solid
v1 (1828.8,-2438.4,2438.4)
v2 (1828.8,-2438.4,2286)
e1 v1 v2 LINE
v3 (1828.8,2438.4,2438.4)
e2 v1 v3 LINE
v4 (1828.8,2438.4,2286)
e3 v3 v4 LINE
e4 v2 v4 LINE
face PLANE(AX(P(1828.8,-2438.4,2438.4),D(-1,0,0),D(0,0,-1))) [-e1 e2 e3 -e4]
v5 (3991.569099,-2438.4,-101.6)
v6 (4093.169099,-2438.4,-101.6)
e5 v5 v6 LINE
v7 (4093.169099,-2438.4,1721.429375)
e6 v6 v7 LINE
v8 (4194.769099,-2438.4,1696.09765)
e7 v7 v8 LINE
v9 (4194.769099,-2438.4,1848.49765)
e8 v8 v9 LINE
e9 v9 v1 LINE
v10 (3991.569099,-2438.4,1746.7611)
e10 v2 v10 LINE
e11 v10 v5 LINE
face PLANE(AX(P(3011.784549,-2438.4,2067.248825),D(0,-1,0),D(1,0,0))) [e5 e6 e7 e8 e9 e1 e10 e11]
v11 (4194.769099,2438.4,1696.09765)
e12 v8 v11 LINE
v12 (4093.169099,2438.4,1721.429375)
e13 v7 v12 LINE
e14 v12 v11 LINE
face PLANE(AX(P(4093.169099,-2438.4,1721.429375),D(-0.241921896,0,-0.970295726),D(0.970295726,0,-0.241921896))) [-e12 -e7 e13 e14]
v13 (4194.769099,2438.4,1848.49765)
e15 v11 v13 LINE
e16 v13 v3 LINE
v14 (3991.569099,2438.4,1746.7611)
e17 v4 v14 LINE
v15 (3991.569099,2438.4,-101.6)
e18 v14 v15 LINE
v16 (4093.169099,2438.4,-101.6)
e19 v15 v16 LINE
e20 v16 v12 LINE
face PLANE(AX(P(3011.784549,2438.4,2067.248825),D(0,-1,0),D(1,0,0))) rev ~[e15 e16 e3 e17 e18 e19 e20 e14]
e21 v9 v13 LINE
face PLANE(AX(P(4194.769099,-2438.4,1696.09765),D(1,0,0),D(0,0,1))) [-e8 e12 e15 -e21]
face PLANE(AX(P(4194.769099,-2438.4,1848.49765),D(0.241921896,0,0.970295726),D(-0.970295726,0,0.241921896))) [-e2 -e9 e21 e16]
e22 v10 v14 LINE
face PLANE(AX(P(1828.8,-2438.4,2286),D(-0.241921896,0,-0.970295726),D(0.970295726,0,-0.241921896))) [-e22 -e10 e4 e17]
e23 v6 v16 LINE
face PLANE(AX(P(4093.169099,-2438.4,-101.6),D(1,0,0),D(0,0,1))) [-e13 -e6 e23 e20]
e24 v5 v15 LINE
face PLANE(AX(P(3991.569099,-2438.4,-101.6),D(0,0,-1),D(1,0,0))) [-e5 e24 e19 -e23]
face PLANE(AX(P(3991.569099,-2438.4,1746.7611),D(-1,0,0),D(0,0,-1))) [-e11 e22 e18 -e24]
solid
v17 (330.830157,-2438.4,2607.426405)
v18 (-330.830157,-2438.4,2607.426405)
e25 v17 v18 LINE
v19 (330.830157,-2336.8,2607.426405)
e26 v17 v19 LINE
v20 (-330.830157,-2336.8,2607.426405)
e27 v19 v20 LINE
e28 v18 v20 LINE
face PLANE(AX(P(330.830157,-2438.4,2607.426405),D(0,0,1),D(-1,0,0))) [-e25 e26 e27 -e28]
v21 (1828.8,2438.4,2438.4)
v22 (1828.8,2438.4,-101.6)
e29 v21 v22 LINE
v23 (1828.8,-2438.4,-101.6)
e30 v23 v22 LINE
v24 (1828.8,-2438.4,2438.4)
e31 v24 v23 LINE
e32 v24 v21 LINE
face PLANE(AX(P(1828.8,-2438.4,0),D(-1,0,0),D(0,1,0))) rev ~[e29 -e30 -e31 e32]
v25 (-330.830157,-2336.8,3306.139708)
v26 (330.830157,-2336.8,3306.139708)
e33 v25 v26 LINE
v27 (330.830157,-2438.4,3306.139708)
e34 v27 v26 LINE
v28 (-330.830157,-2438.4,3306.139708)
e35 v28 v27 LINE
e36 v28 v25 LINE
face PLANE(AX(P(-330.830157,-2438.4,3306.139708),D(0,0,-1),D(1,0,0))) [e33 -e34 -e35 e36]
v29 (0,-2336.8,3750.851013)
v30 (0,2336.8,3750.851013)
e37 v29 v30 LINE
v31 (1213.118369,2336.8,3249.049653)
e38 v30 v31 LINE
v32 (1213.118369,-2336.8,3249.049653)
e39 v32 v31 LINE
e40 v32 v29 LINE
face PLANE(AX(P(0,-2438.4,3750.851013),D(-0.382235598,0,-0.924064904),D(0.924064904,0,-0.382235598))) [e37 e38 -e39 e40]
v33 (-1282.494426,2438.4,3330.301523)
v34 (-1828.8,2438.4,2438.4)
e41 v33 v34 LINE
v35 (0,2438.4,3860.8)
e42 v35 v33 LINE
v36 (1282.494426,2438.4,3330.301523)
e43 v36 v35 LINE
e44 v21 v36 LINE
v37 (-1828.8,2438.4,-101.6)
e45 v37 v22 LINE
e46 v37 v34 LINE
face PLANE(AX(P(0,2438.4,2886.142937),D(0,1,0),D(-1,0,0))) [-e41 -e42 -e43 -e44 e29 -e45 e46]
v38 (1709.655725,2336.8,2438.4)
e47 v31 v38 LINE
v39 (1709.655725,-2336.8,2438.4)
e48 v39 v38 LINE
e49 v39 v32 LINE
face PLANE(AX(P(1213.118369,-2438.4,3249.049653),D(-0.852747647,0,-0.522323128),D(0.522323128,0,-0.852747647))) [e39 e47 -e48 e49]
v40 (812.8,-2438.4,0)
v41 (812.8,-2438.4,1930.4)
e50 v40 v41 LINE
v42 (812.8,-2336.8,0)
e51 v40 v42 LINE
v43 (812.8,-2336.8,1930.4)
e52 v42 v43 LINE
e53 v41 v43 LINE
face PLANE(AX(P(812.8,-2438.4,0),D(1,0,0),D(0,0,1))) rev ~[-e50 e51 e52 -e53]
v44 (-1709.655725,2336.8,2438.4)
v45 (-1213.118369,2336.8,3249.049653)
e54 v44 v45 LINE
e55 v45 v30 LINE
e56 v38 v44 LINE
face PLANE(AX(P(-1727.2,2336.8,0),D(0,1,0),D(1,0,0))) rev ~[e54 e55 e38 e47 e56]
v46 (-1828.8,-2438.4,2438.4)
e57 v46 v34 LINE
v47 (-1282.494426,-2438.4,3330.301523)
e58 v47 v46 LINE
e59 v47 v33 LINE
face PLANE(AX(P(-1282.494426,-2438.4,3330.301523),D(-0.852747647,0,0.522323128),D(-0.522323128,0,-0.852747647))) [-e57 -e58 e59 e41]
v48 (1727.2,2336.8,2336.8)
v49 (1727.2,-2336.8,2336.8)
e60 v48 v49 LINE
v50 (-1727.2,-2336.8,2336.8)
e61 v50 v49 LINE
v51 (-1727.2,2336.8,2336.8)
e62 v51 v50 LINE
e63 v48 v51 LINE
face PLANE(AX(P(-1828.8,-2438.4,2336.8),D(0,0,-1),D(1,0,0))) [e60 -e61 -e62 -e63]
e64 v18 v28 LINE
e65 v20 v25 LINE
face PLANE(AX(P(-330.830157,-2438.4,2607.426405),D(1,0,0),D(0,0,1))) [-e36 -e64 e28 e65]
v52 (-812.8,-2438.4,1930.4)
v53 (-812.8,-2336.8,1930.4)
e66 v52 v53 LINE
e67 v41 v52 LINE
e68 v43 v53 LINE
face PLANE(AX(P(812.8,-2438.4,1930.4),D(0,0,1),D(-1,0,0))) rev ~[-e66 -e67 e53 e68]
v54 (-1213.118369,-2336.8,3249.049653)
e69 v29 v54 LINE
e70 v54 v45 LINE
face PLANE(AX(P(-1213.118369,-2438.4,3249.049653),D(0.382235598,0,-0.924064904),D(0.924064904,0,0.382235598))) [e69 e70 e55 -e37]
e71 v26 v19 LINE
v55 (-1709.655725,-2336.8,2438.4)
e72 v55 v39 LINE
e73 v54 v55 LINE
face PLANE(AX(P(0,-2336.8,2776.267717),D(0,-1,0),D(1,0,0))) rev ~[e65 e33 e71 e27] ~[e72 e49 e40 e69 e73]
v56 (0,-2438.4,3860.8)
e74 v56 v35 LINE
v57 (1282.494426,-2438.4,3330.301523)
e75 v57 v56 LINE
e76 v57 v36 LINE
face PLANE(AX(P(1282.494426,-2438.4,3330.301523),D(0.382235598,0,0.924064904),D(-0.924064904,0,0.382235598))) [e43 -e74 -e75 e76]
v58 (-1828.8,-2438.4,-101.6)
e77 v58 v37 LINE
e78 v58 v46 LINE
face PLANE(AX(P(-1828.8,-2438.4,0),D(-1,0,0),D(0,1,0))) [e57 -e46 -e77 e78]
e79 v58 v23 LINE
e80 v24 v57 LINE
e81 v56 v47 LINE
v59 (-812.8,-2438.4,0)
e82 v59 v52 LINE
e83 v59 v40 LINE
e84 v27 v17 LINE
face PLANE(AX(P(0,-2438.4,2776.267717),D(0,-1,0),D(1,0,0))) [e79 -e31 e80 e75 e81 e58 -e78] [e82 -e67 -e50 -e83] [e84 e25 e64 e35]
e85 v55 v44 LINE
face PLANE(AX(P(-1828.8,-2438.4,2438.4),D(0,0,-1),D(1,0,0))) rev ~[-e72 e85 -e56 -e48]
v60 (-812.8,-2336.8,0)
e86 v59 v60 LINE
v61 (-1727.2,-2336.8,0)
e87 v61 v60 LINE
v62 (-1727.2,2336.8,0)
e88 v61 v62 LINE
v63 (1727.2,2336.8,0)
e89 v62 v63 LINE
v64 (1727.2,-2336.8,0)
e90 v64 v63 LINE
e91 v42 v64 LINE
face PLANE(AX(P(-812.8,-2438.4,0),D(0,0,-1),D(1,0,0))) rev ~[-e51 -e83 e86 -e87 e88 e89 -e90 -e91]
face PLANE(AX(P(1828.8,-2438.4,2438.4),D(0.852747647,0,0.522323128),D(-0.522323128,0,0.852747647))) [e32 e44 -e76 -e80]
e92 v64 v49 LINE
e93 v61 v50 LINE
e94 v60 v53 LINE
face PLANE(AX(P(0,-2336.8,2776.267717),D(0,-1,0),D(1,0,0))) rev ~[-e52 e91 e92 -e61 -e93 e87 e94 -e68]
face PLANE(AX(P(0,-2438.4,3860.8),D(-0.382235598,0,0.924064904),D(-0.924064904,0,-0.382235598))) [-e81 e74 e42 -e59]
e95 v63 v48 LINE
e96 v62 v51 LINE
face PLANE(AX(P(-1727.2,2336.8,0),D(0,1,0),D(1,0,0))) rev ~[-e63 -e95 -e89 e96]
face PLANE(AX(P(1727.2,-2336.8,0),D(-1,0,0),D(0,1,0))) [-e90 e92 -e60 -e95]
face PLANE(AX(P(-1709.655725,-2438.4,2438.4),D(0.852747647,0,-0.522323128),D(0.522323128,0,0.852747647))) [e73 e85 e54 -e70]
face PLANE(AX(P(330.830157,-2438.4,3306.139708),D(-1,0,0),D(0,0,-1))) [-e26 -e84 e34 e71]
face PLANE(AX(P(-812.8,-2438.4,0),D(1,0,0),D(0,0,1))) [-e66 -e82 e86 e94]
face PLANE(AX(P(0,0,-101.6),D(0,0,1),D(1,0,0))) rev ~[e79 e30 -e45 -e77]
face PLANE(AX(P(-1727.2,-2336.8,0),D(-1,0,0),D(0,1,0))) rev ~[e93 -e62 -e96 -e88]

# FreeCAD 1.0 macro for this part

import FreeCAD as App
import Part
import Sketcher

V = App.Vector
Q = App.Units.Quantity


def add_polygon(sketch, points):
    """Adds a closed chain of lines whose ends are joined by coincident constraints."""
    first, n = sketch.GeometryCount, len(points)
    for a, b in zip(points, points[1:] + points[:1]):
        sketch.addGeometry(Part.LineSegment(App.Vector(*a, 0), App.Vector(*b, 0)), False)
    for i in range(n):
        sketch.addConstraint(Sketcher.Constraint("Coincident", first + i, 2, first + (i + 1) % n, 1))

doc = App.newDocument("Part")
body = doc.addObject("PartDesign::Body", "Body")

# Sketch on XY plane
sketch1 = doc.addObject("Sketcher::SketchObject", "Sketch")
body.addObject(sketch1)
sketch1.AttachmentSupport = (doc.XY_Plane, [""])
sketch1.MapMode = "FlatFace"
add_polygon(sketch1, [(-1829, 2438), (-1829, -2438), (1829, -2438), (1829, 2438)])  # lines 0-3
sketch1.addConstraint(Sketcher.Constraint("Vertical", 0))
sketch1.addConstraint(Sketcher.Constraint("Horizontal", 1))
sketch1.addConstraint(Sketcher.Constraint("Vertical", 2))
sketch1.addConstraint(Sketcher.Constraint("Horizontal", 3))
sketch1.addConstraint(Sketcher.Constraint("Symmetric", 0, 2, 2, 2, -1, 1))
sketch1.addConstraint(Sketcher.Constraint("DistanceX", 1, 1, 1, 2, Q("144 in")))
sketch1.addConstraint(Sketcher.Constraint("DistanceY", 0, 2, 0, 1, Q("192 in")))
pad1 = doc.addObject("PartDesign::Pad", "Pad")
body.addObject(pad1)
pad1.Profile = sketch1
pad1.Length = Q("4 in")
pad1.Reversed = True

# Sketch on XY plane
sketch2 = doc.addObject("Sketcher::SketchObject", "Sketch001")
body.addObject(sketch2)
sketch2.AttachmentSupport = (doc.XY_Plane, [""])
sketch2.MapMode = "FlatFace"
add_polygon(sketch2, [(-1829, 2438), (-1829, -2438), (1829, -2438), (1829, 2438)])  # lines 0-3
add_polygon(sketch2, [(1727, -2337), (-1727, -2337), (-1727, 2337), (1727, 2337)])  # lines 4-7
sketch2.addConstraint(Sketcher.Constraint("Vertical", 0))
sketch2.addConstraint(Sketcher.Constraint("Horizontal", 1))
sketch2.addConstraint(Sketcher.Constraint("Vertical", 2))
sketch2.addConstraint(Sketcher.Constraint("Horizontal", 3))
sketch2.addConstraint(Sketcher.Constraint("Horizontal", 4))
sketch2.addConstraint(Sketcher.Constraint("Vertical", 5))
sketch2.addConstraint(Sketcher.Constraint("Horizontal", 6))
sketch2.addConstraint(Sketcher.Constraint("Vertical", 7))
sketch2.addConstraint(Sketcher.Constraint("Symmetric", 0, 2, 2, 2, -1, 1))
sketch2.addConstraint(Sketcher.Constraint("Symmetric", 4, 2, 6, 2, -1, 1))
sketch2.addConstraint(Sketcher.Constraint("DistanceX", 1, 1, 1, 2, Q("144 in")))
sketch2.addConstraint(Sketcher.Constraint("DistanceX", 4, 2, 4, 1, Q("136 in")))
sketch2.addConstraint(Sketcher.Constraint("DistanceY", 0, 2, 0, 1, Q("192 in")))
sketch2.addConstraint(Sketcher.Constraint("DistanceY", 5, 1, 5, 2, Q("184 in")))
pad2 = doc.addObject("PartDesign::Pad", "Pad001")
body.addObject(pad2)
pad2.Profile = sketch2
pad2.Length = Q("96 in")

# Sketch on XZ plane
sketch3 = doc.addObject("Sketcher::SketchObject", "Sketch002")
body.addObject(sketch3)
sketch3.AttachmentSupport = (doc.XZ_Plane, [""])
sketch3.MapMode = "FlatFace"
sketch3.AttachmentOffset = App.Placement(V(0, 0, 96 * 25.4), App.Rotation())
add_polygon(sketch3, [(-813, 1930), (-813, 0), (813, 0), (813, 1930)])  # lines 0-3
sketch3.addConstraint(Sketcher.Constraint("Vertical", 0))
sketch3.addConstraint(Sketcher.Constraint("Horizontal", 1))
sketch3.addConstraint(Sketcher.Constraint("Vertical", 2))
sketch3.addConstraint(Sketcher.Constraint("Horizontal", 3))
sketch3.addConstraint(Sketcher.Constraint("Symmetric", 0, 2, 1, 2, -1, 1))
sketch3.addConstraint(Sketcher.Constraint("DistanceX", 1, 1, 1, 2, Q("64 in")))
sketch3.addConstraint(Sketcher.Constraint("DistanceY", 0, 2, 0, 1, Q("76 in")))
pocket1 = doc.addObject("PartDesign::Pocket", "Pocket")
body.addObject(pocket1)
pocket1.Profile = sketch3
pocket1.Length = Q("4 in")

# Sketch on XZ plane
sketch4 = doc.addObject("Sketcher::SketchObject", "Sketch003")
body.addObject(sketch4)
sketch4.AttachmentSupport = (doc.XZ_Plane, [""])
sketch4.MapMode = "FlatFace"
sketch4.AttachmentOffset = App.Placement(V(0, 0, 96 * 25.4), App.Rotation())
add_polygon(sketch4, [(-1282, 3330), (-1829, 2438), (-1710, 2438), (-1213, 3249), (0, 3751), (1213, 3249), (1710, 2438), (1829, 2438), (1282, 3330), (0, 3861)])  # lines 0-9
sketch4.addConstraint(Sketcher.Constraint("Horizontal", 1))
sketch4.addConstraint(Sketcher.Constraint("Horizontal", 6))
sketch4.addConstraint(Sketcher.Constraint("Symmetric", 2, 2, 4, 2, -2))
sketch4.addConstraint(Sketcher.Constraint("Symmetric", 1, 2, 5, 2, -2))
sketch4.addConstraint(Sketcher.Constraint("Symmetric", 7, 2, 9, 2, -2))
sketch4.addConstraint(Sketcher.Constraint("PointOnObject", 3, 2, -2))
sketch4.addConstraint(Sketcher.Constraint("PointOnObject", 8, 2, -2))
sketch4.addConstraint(Sketcher.Constraint("Parallel", 0, 2))
sketch4.addConstraint(Sketcher.Constraint("Parallel", 5, 7))
sketch4.addConstraint(Sketcher.Constraint("Parallel", 4, 8))
sketch4.addConstraint(Sketcher.Constraint("DistanceX", 0, 2, -1, 1, Q("72 in")))
sketch4.addConstraint(Sketcher.Constraint("DistanceY", -1, 1, 0, 2, Q("96 in")))
sketch4.addConstraint(Sketcher.Constraint("DistanceY", -1, 1, 8, 2, Q("152 in")))
sketch4.addConstraint(Sketcher.Constraint("DistanceX", 7, 2, 5, 2, Q("427.161299 mm")))
sketch4.addConstraint(Sketcher.Constraint("Distance", 0, Q("1045.914962 mm")))
sketch4.addConstraint(Sketcher.Constraint("Distance", 2, Q("950.63253 mm")))
sketch4.addConstraint(Sketcher.Constraint("Distance", 8, Q("1387.883492 mm")))
pad3 = doc.addObject("PartDesign::Pad", "Pad002")
body.addObject(pad3)
pad3.Profile = sketch4
pad3.Length = Q("192 in")
pad3.Reversed = True

# Sketch on XZ plane
sketch5 = doc.addObject("Sketcher::SketchObject", "Sketch004")
body.addObject(sketch5)
sketch5.AttachmentSupport = (doc.XZ_Plane, [""])
sketch5.MapMode = "FlatFace"
sketch5.AttachmentOffset = App.Placement(V(0, 0, 96 * 25.4), App.Rotation())
add_polygon(sketch5, [(-1213, 3249), (-1710, 2438), (1710, 2438), (1213, 3249), (0, 3751)])  # lines 0-4
add_polygon(sketch5, [(331, 3306), (331, 2607), (-331, 2607), (-331, 3306)])  # lines 5-8
sketch5.addConstraint(Sketcher.Constraint("Horizontal", 1))
sketch5.addConstraint(Sketcher.Constraint("Vertical", 5))
sketch5.addConstraint(Sketcher.Constraint("Horizontal", 6))
sketch5.addConstraint(Sketcher.Constraint("Vertical", 7))
sketch5.addConstraint(Sketcher.Constraint("Horizontal", 8))
sketch5.addConstraint(Sketcher.Constraint("Symmetric", 2, 2, 4, 2, -2))
sketch5.addConstraint(Sketcher.Constraint("PointOnObject", 3, 2, -2))
sketch5.addConstraint(Sketcher.Constraint("Equal", 0, 2))
sketch5.addConstraint(Sketcher.Constraint("DistanceY", -1, 1, 0, 2, Q("96 in")))
sketch5.addConstraint(Sketcher.Constraint("DistanceX", 1, 1, 1, 2, Q("3419.311451 mm")))
sketch5.addConstraint(Sketcher.Constraint("Distance", 0, Q("950.63253 mm")))
sketch5.addConstraint(Sketcher.Constraint("DistanceX", 6, 2, 6, 1, Q("661.660314 mm")))
sketch5.addConstraint(Sketcher.Constraint("DistanceY", 5, 2, 5, 1, Q("698.713303 mm")))
sketch5.addConstraint(Sketcher.Constraint("DistanceX", -1, 1, 2, 2, Q("1213.118369 mm")))
sketch5.addConstraint(Sketcher.Constraint("DistanceY", 2, 2, 3, 2, Q("501.80136 mm")))
sketch5.addConstraint(Sketcher.Constraint("DistanceY", 5, 2, 2, 2, Q("641.623248 mm")))
sketch5.addConstraint(Sketcher.Constraint("DistanceX", 5, 2, 1, 2, Q("1378.825568 mm")))
pad4 = doc.addObject("PartDesign::Pad", "Pad003")
body.addObject(pad4)
pad4.Profile = sketch5
pad4.Length = Q("4 in")
pad4.Reversed = True

# Sketch on XZ plane
sketch6 = doc.addObject("Sketcher::SketchObject", "Sketch005")
body.addObject(sketch6)
sketch6.AttachmentSupport = (doc.XZ_Plane, [""])
sketch6.MapMode = "FlatFace"
sketch6.AttachmentOffset = App.Placement(V(0, 0, -96 * 25.4), App.Rotation())
add_polygon(sketch6, [(1213, 3249), (1710, 2438), (-1710, 2438), (-1213, 3249), (0, 3751)])  # lines 0-4
sketch6.addConstraint(Sketcher.Constraint("Horizontal", 1))
sketch6.addConstraint(Sketcher.Constraint("Symmetric", 2, 2, 4, 2, -2))
sketch6.addConstraint(Sketcher.Constraint("PointOnObject", 3, 2, -2))
sketch6.addConstraint(Sketcher.Constraint("Equal", 0, 2))
sketch6.addConstraint(Sketcher.Constraint("DistanceY", -1, 1, 0, 2, Q("96 in")))
sketch6.addConstraint(Sketcher.Constraint("DistanceX", 1, 2, 1, 1, Q("3419.311451 mm")))
sketch6.addConstraint(Sketcher.Constraint("Distance", 0, Q("950.63253 mm")))
sketch6.addConstraint(Sketcher.Constraint("DistanceX", 2, 2, -1, 1, Q("1213.118369 mm")))
sketch6.addConstraint(Sketcher.Constraint("DistanceY", 2, 2, 3, 2, Q("501.80136 mm")))
pad5 = doc.addObject("PartDesign::Pad", "Pad004")
body.addObject(pad5)
pad5.Profile = sketch6
pad5.Length = Q("4 in")

# Sketch on XZ plane
sketch7 = doc.addObject("Sketcher::SketchObject", "Sketch006")
body.addObject(sketch7)
sketch7.AttachmentSupport = (doc.XZ_Plane, [""])
sketch7.MapMode = "FlatFace"
sketch7.AttachmentOffset = App.Placement(V(0, 0, 96 * 25.4), App.Rotation())
add_polygon(sketch7, [(-1829, 2438), (-1829, 2337), (1829, 2337), (1829, 2438)])  # lines 0-3
sketch7.addConstraint(Sketcher.Constraint("Vertical", 0))
sketch7.addConstraint(Sketcher.Constraint("Horizontal", 1))
sketch7.addConstraint(Sketcher.Constraint("Vertical", 2))
sketch7.addConstraint(Sketcher.Constraint("Horizontal", 3))
sketch7.addConstraint(Sketcher.Constraint("DistanceX", 1, 1, 1, 2, Q("144 in")))
sketch7.addConstraint(Sketcher.Constraint("DistanceY", 0, 2, 0, 1, Q("4 in")))
sketch7.addConstraint(Sketcher.Constraint("DistanceX", 0, 2, -1, 1, Q("72 in")))
sketch7.addConstraint(Sketcher.Constraint("DistanceY", -1, 1, 0, 2, Q("92 in")))
pad6 = doc.addObject("PartDesign::Pad", "Pad005")
body.addObject(pad6)
pad6.Profile = sketch7
pad6.Length = Q("192 in")
pad6.Reversed = True
body2 = doc.addObject("PartDesign::Body", "Body001")

# Sketch on XZ plane
sketch8 = doc.addObject("Sketcher::SketchObject", "Sketch007")
body2.addObject(sketch8)
sketch8.AttachmentSupport = (doc.getObject("XZ_Plane001"), [""])
sketch8.MapMode = "FlatFace"
sketch8.AttachmentOffset = App.Placement(V(0, 0, 96 * 25.4), App.Rotation())
add_polygon(sketch8, [(4195, 1848), (1829, 2438), (1829, 2286), (4195, 1696)])  # lines 0-3
sketch8.addConstraint(Sketcher.Constraint("Vertical", 1))
sketch8.addConstraint(Sketcher.Constraint("Vertical", 3))
sketch8.addConstraint(Sketcher.Constraint("Parallel", 0, 2))
sketch8.addConstraint(Sketcher.Constraint("DistanceY", 1, 2, 1, 1, Q("6 in")))
sketch8.addConstraint(Sketcher.Constraint("Distance", 0, Q("96 in")))
sketch8.addConstraint(Sketcher.Constraint("DistanceX", -1, 1, 0, 2, Q("72 in")))
sketch8.addConstraint(Sketcher.Constraint("DistanceY", -1, 1, 0, 2, Q("96 in")))
sketch8.addConstraint(Sketcher.Constraint("Angle", 0, Q("166 deg")))
pad7 = doc.addObject("PartDesign::Pad", "Pad006")
body2.addObject(pad7)
pad7.Profile = sketch8
pad7.Length = Q("192 in")
pad7.Reversed = True
body3 = doc.addObject("PartDesign::Body", "Body002")

# Sketch on XZ plane
sketch9 = doc.addObject("Sketcher::SketchObject", "Sketch008")
body3.addObject(sketch9)
sketch9.AttachmentSupport = (doc.getObject("XZ_Plane002"), [""])
sketch9.MapMode = "FlatFace"
sketch9.AttachmentOffset = App.Placement(V(0, 0, 96 * 25.4), App.Rotation())
add_polygon(sketch9, [(4195, 1848), (1829, 2438), (1829, 2286), (3992, 1747), (3992, -102), (4093, -102), (4093, 1721), (4195, 1696)])  # lines 0-7
sketch9.addConstraint(Sketcher.Constraint("Vertical", 1))
sketch9.addConstraint(Sketcher.Constraint("Vertical", 3))
sketch9.addConstraint(Sketcher.Constraint("Horizontal", 4))
sketch9.addConstraint(Sketcher.Constraint("Vertical", 5))
sketch9.addConstraint(Sketcher.Constraint("Vertical", 7))
sketch9.addConstraint(Sketcher.Constraint("Parallel", 0, 2))
sketch9.addConstraint(Sketcher.Constraint("Parallel", 2, 6))
sketch9.addConstraint(Sketcher.Constraint("Equal", 1, 7))
sketch9.addConstraint(Sketcher.Constraint("DistanceX", 4, 1, 4, 2, Q("4 in")))
sketch9.addConstraint(Sketcher.Constraint("DistanceY", 1, 2, 1, 1, Q("6 in")))
sketch9.addConstraint(Sketcher.Constraint("Distance", 0, Q("96 in")))
sketch9.addConstraint(Sketcher.Constraint("DistanceX", -1, 1, 0, 2, Q("72 in")))
sketch9.addConstraint(Sketcher.Constraint("DistanceY", -1, 1, 0, 2, Q("96 in")))
sketch9.addConstraint(Sketcher.Constraint("DistanceY", 3, 2, -1, 1, Q("4 in")))
sketch9.addConstraint(Sketcher.Constraint("Angle", 0, Q("166 deg")))
sketch9.addConstraint(Sketcher.Constraint("DistanceX", 5, 2, 6, 2, Q("4 in")))
pad8 = doc.addObject("PartDesign::Pad", "Pad007")
body3.addObject(pad8)
pad8.Profile = sketch9
pad8.Length = Q("192 in")
pad8.Reversed = True
body2.Visibility = False

doc.recompute()
